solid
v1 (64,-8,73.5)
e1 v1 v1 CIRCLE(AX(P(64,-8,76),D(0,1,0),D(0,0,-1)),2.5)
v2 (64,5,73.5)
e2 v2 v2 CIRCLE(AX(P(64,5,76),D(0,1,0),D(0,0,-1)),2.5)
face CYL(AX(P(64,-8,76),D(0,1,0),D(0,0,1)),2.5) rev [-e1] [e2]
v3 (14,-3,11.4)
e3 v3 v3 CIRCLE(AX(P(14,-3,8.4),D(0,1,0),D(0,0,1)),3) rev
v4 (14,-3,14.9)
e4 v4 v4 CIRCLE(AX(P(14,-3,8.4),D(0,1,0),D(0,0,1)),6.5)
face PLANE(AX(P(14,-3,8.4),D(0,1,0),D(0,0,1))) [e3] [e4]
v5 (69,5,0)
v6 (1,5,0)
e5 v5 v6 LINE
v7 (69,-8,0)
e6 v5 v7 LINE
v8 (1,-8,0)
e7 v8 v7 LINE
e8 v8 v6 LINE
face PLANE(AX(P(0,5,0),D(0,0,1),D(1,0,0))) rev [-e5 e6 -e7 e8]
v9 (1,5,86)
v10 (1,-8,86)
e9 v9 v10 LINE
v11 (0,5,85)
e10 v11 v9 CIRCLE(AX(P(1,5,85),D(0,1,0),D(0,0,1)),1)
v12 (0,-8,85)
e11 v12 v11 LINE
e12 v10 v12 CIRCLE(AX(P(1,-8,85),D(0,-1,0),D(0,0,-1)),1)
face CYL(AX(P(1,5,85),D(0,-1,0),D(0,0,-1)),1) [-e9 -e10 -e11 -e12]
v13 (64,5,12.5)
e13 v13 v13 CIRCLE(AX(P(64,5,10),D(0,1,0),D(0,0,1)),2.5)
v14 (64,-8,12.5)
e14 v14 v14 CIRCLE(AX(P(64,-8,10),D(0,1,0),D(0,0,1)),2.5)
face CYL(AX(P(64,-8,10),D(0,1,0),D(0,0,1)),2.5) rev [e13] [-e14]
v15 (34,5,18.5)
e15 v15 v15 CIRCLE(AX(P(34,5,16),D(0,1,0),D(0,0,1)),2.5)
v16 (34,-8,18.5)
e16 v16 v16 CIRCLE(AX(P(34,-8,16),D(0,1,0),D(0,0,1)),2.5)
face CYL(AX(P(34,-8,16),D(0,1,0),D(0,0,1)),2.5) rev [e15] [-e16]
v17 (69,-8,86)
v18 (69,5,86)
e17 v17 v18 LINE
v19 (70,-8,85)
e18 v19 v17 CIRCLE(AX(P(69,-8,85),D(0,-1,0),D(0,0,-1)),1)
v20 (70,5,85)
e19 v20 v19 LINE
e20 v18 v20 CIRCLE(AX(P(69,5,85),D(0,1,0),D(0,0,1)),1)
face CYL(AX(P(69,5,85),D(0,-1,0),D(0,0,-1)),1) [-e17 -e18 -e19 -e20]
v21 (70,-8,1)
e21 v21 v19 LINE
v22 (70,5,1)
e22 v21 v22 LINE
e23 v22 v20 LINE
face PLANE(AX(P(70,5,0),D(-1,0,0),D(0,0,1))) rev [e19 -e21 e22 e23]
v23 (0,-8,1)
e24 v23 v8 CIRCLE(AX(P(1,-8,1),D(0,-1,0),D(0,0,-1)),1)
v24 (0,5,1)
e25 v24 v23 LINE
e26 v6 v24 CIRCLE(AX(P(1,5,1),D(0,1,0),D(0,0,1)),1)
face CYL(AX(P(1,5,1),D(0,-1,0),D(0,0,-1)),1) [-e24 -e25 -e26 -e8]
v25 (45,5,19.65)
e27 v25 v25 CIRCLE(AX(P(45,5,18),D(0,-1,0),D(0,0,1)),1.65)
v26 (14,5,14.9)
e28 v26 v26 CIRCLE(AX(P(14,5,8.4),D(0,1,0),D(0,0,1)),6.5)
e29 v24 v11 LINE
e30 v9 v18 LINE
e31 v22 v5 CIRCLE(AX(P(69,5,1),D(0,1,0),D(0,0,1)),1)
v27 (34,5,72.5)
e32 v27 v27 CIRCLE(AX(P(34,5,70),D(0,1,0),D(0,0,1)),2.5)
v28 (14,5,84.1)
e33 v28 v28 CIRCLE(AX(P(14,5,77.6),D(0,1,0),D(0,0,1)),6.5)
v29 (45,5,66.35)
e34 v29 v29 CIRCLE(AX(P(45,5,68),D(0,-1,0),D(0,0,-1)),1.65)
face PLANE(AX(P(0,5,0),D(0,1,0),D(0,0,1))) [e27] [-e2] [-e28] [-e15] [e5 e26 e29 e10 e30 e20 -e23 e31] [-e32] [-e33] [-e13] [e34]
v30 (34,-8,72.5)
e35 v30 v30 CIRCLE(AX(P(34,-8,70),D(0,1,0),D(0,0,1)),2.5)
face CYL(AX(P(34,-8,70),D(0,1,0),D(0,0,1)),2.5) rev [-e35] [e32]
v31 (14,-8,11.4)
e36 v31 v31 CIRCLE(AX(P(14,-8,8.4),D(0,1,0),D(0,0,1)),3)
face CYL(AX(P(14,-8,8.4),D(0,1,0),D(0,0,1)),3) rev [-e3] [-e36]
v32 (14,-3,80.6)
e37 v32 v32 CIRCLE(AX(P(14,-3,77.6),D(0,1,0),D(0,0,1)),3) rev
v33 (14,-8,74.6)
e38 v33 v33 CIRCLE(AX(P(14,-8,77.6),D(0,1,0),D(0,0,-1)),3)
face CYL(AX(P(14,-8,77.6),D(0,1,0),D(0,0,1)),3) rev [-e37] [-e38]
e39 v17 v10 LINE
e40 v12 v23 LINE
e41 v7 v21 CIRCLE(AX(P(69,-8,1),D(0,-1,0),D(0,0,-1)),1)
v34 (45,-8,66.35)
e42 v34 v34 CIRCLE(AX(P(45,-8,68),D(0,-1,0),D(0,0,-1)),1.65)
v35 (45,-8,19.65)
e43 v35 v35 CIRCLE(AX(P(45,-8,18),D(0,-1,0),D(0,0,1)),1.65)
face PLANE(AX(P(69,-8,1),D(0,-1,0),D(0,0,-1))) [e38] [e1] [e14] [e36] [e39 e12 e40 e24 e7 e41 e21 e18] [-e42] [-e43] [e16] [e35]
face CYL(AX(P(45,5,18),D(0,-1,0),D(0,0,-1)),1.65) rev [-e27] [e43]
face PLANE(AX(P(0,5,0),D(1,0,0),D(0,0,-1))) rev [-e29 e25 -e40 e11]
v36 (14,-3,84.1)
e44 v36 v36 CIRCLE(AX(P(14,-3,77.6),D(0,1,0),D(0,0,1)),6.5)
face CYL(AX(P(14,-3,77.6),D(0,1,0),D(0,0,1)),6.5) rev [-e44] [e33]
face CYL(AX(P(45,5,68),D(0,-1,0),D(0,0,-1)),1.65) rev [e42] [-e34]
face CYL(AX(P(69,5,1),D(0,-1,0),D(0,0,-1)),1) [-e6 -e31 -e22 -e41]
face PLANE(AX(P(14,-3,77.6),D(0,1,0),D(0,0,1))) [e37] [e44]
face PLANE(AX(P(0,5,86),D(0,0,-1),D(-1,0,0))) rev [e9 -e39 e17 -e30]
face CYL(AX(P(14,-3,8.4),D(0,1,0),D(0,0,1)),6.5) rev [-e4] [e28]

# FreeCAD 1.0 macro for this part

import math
import FreeCAD as App
import Part
import Sketcher


def edges_at(feature, points):
    """Names of the edges that pass closest to the given points."""
    edges = feature.Shape.Edges
    near = lambda p: min(range(len(edges)), key=lambda i: edges[i].distToShape(Part.Vertex(*p))[0])
    return sorted({f"Edge{near(p) + 1}" for p in points})


def add_polygon(sketch, points):
    """Adds a closed chain of lines whose ends are joined by coincident constraints."""
    first, n = sketch.GeometryCount, len(points)
    for a, b in zip(points, points[1:] + points[:1]):
        sketch.addGeometry(Part.LineSegment(App.Vector(*a, 0), App.Vector(*b, 0)), False)
    for i in range(n):
        sketch.addConstraint(Sketcher.Constraint("Coincident", first + i, 2, first + (i + 1) % n, 1))

doc = App.newDocument("Part")
body = doc.addObject("PartDesign::Body", "Body")

# Sketch on XZ plane
sketch1 = body.newObject("Sketcher::SketchObject", "Sketch")
sketch1.AttachmentSupport = (doc.getObject("XZ_Plane"), [""])
sketch1.MapMode = "FlatFace"
add_polygon(sketch1, [(0, 0), (0, 86), (70, 86), (70, 0)])  # lines 0-3
sketch1.addConstraint([
    Sketcher.Constraint("Vertical", 0),
    Sketcher.Constraint("Horizontal", 1),
    Sketcher.Constraint("Vertical", 2),
    Sketcher.Constraint("Horizontal", 3),
    Sketcher.Constraint("Coincident", 3, 2, -1, 1),
    Sketcher.Constraint("DistanceX", 1, 1, 1, 2, 70.0),
    Sketcher.Constraint("DistanceY", 0, 1, 0, 2, 86.0),
])
pad1 = body.newObject("PartDesign::Pad", "Pad")
pad1.Profile = sketch1
pad1.Length = 5
pad1.Reversed = True

# Sketch on XZ plane
sketch2 = body.newObject("Sketcher::SketchObject", "Sketch001")
sketch2.AttachmentSupport = (doc.getObject("XZ_Plane"), [""])
sketch2.MapMode = "FlatFace"
sketch2.AttachmentOffset = App.Placement(App.Vector(0, 0, -5), App.Rotation())
add_polygon(sketch2, [(58, 0), (58, 86), (70, 86), (70, 0)])  # lines 0-3
sketch2.addConstraint([
    Sketcher.Constraint("Vertical", 0),
    Sketcher.Constraint("Horizontal", 1),
    Sketcher.Constraint("Vertical", 2),
    Sketcher.Constraint("Horizontal", 3),
    Sketcher.Constraint("PointOnObject", 2, 2, -1),
    Sketcher.Constraint("DistanceX", 1, 1, 1, 2, 12.0),
    Sketcher.Constraint("DistanceY", 0, 1, 0, 2, 86.0),
    Sketcher.Constraint("DistanceX", -1, 1, 0, 2, 58.0),
])
pad2 = body.newObject("PartDesign::Pad", "Pad001")
pad2.Profile = sketch2
pad2.Length = 87
pad2.Reversed = True

# Sketch on YZ plane
sketch3 = body.newObject("Sketcher::SketchObject", "Sketch002")
sketch3.AttachmentSupport = (doc.getObject("YZ_Plane"), [""])
sketch3.MapMode = "FlatFace"
sketch3.AttachmentOffset = App.Placement(App.Vector(0, 0, 58), App.Rotation())
sketch3.addGeometry(Part.Circle(App.Vector(56, 43, 0), App.Vector(0, 0, 1), 38), False)
sketch3.addConstraint([
    Sketcher.Constraint("Diameter", 0, 76.0),
    Sketcher.Constraint("DistanceX", -1, 1, 0, 3, 56.0),
    Sketcher.Constraint("DistanceY", -1, 1, 0, 3, 43.0),
])
pocket1 = body.newObject("PartDesign::Pocket", "Pocket")
pocket1.Profile = sketch3
pocket1.Length = 3
pocket1.Reversed = True

# Sketch on YZ plane
sketch4 = body.newObject("Sketcher::SketchObject", "Sketch003")
sketch4.AttachmentSupport = (doc.getObject("YZ_Plane"), [""])
sketch4.MapMode = "FlatFace"
sketch4.AttachmentOffset = App.Placement(App.Vector(0, 0, 58), App.Rotation())
sketch4.addGeometry([
    Part.Circle(App.Vector(90.8, 77.8, 0), App.Vector(0, 0, 1), 2.6),
    Part.Circle(App.Vector(21.2, 77.8, 0), App.Vector(0, 0, 1), 2.6),
    Part.Circle(App.Vector(90.8, 8.2, 0), App.Vector(0, 0, 1), 2.6),
    Part.Circle(App.Vector(21.2, 8.2, 0), App.Vector(0, 0, 1), 2.6),
], False)
sketch4.addConstraint([
    Sketcher.Constraint("Equal", 0, 1),
    Sketcher.Constraint("Equal", 1, 2),
    Sketcher.Constraint("Equal", 2, 3),
    Sketcher.Constraint("Horizontal", 0, 3, 1, 3),
    Sketcher.Constraint("Horizontal", 2, 3, 3, 3),
    Sketcher.Constraint("Vertical", 0, 3, 2, 3),
    Sketcher.Constraint("Vertical", 1, 3, 3, 3),
    Sketcher.Constraint("Diameter", 0, 5.2),
    Sketcher.Constraint("DistanceX", -1, 1, 0, 3, 90.8),
    Sketcher.Constraint("DistanceY", -1, 1, 0, 3, 77.8),
    Sketcher.Constraint("DistanceX", -1, 1, 1, 3, 21.2),
    Sketcher.Constraint("DistanceY", -1, 1, 2, 3, 8.2),
])
pocket2 = body.newObject("PartDesign::Pocket", "Pocket001")
pocket2.Profile = sketch4
pocket2.Type = "ThroughAll"
pocket2.Reversed = True
doc.recompute()

fillet = body.newObject("PartDesign::Fillet", "Fillet")
fillet.Base = (pocket2, edges_at(pocket2, [(64, 92, 0), (64, 92, 86)]))
fillet.Radius = 3

# Sketch on YZ plane
sketch5 = body.newObject("Sketcher::SketchObject", "Sketch004")
sketch5.AttachmentSupport = (doc.getObject("YZ_Plane"), [""])
sketch5.MapMode = "FlatFace"
sketch5.AttachmentOffset = App.Placement(App.Vector(0, 0, 58), App.Rotation())
sketch5.addGeometry(Part.Circle(App.Vector(56, 43, 0), App.Vector(0, 0, 1), 20), False)
sketch5.addConstraint([
    Sketcher.Constraint("Diameter", 0, 40.0),
    Sketcher.Constraint("DistanceX", -1, 1, 0, 3, 56.0),
    Sketcher.Constraint("DistanceY", -1, 1, 0, 3, 43.0),
])
pocket3 = body.newObject("PartDesign::Pocket", "Pocket002")
pocket3.Profile = sketch5
pocket3.Type = "ThroughAll"
pocket3.Reversed = True

# Sketch on XY plane
sketch6 = body.newObject("Sketcher::SketchObject", "Sketch005")
sketch6.AttachmentSupport = (doc.getObject("XY_Plane"), [""])
sketch6.MapMode = "FlatFace"
sketch6.AttachmentOffset = App.Placement(App.Vector(0, 0, 86), App.Rotation())
add_polygon(sketch6, [(58, 92), (58, 5), (70, 5), (70, 92)])  # lines 0-3
sketch6.addConstraint([
    Sketcher.Constraint("Vertical", 0),
    Sketcher.Constraint("Horizontal", 1),
    Sketcher.Constraint("Vertical", 2),
    Sketcher.Constraint("Horizontal", 3),
    Sketcher.Constraint("DistanceX", 1, 1, 1, 2, 12.0),
    Sketcher.Constraint("DistanceY", 0, 2, 0, 1, 87.0),
    Sketcher.Constraint("DistanceX", -1, 1, 0, 2, 58.0),
    Sketcher.Constraint("DistanceY", -1, 1, 0, 2, 5.0),
])
pocket4 = body.newObject("PartDesign::Pocket", "Pocket003")
pocket4.Profile = sketch6
pocket4.Type = "ThroughAll"
doc.recompute()

fillet2 = body.newObject("PartDesign::Fillet", "Fillet001")
fillet2.Base = (pocket4, edges_at(pocket4, [
    (0, 2.5, 0),
    (0, 2.5, 86),
    (70, 2.5, 0),
    (70, 2.5, 86),
]))
fillet2.Radius = 1

# Sketch on XZ plane
sketch7 = body.newObject("Sketcher::SketchObject", "Sketch006")
sketch7.AttachmentSupport = (doc.getObject("XZ_Plane"), [""])
sketch7.MapMode = "FlatFace"
sketch7.addGeometry([
    Part.LineSegment(App.Vector(70, 1, 0), App.Vector(70, 85, 0)),  # 0
    Part.ArcOfCircle(Part.Circle(App.Vector(69, 85, 0), App.Vector(0, 0, 1), 1), math.radians(0), math.radians(90)),  # 1
    Part.LineSegment(App.Vector(69, 86, 0), App.Vector(1, 86, 0)),  # 2
    Part.ArcOfCircle(Part.Circle(App.Vector(1, 85, 0), App.Vector(0, 0, 1), 1), math.radians(90), math.radians(180)),  # 3
    Part.LineSegment(App.Vector(0, 85, 0), App.Vector(0, 1, 0)),  # 4
    Part.ArcOfCircle(Part.Circle(App.Vector(1, 1, 0), App.Vector(0, 0, 1), 1), math.radians(-180), math.radians(-90)),  # 5
    Part.LineSegment(App.Vector(1, 0, 0), App.Vector(69, 0, 0)),  # 6
    Part.ArcOfCircle(Part.Circle(App.Vector(69, 1, 0), App.Vector(0, 0, 1), 1), math.radians(-90), math.radians(0)),  # 7
], False)
sketch7.addConstraint([
    Sketcher.Constraint("Tangent", 0, 2, 1, 1),
    Sketcher.Constraint("Tangent", 1, 2, 2, 1),
    Sketcher.Constraint("Tangent", 2, 2, 3, 1),
    Sketcher.Constraint("Tangent", 3, 2, 4, 1),
    Sketcher.Constraint("Tangent", 4, 2, 5, 1),
    Sketcher.Constraint("Tangent", 5, 2, 6, 1),
    Sketcher.Constraint("Tangent", 6, 2, 7, 1),
    Sketcher.Constraint("Tangent", 7, 2, 0, 1),
    Sketcher.Constraint("Vertical", 0),
    Sketcher.Constraint("Horizontal", 2),
    Sketcher.Constraint("Vertical", 4),
    Sketcher.Constraint("Horizontal", 6),
    Sketcher.Constraint("Equal", 1, 3),
    Sketcher.Constraint("Equal", 3, 5),
    Sketcher.Constraint("Equal", 5, 7),
    Sketcher.Constraint("PointOnObject", 3, 2, -2),
    Sketcher.Constraint("PointOnObject", 5, 2, -1),
    Sketcher.Constraint("Radius", 1, 1.0),
    Sketcher.Constraint("DistanceX", 2, 2, 2, 1, 68.0),
    Sketcher.Constraint("DistanceY", 0, 1, 0, 2, 84.0),
])
pad3 = body.newObject("PartDesign::Pad", "Pad002")
pad3.Profile = sketch7
pad3.Length = 8

# Sketch on XZ plane
sketch8 = body.newObject("Sketcher::SketchObject", "Sketch007")
sketch8.AttachmentSupport = (doc.getObject("XZ_Plane"), [""])
sketch8.MapMode = "FlatFace"
sketch8.AttachmentOffset = App.Placement(App.Vector(0, 0, -5), App.Rotation())
sketch8.addGeometry([
    Part.Circle(App.Vector(14, 8.4, 0), App.Vector(0, 0, 1), 3),
    Part.Circle(App.Vector(14, 77.6, 0), App.Vector(0, 0, 1), 3),
], False)
sketch8.addConstraint([
    Sketcher.Constraint("Equal", 0, 1),
    Sketcher.Constraint("Vertical", 0, 3, 1, 3),
    Sketcher.Constraint("Diameter", 0, 6.0),
    Sketcher.Constraint("DistanceX", -1, 1, 0, 3, 14.0),
    Sketcher.Constraint("DistanceY", -1, 1, 0, 3, 8.4),
    Sketcher.Constraint("DistanceY", -1, 1, 1, 3, 77.6),
])
pocket5 = body.newObject("PartDesign::Pocket", "Pocket004")
pocket5.Profile = sketch8
pocket5.Type = "ThroughAll"
pocket5.Reversed = True

# Sketch on XZ plane
sketch9 = body.newObject("Sketcher::SketchObject", "Sketch008")
sketch9.AttachmentSupport = (doc.getObject("XZ_Plane"), [""])
sketch9.MapMode = "FlatFace"
sketch9.addGeometry([
    Part.Circle(App.Vector(45, 68, 0), App.Vector(0, 0, 1), 1.65),
    Part.Circle(App.Vector(45, 18, 0), App.Vector(0, 0, 1), 1.65),
], False)
sketch9.addConstraint([
    Sketcher.Constraint("Equal", 0, 1),
    Sketcher.Constraint("Vertical", 0, 3, 1, 3),
    Sketcher.Constraint("Diameter", 0, 3.3),
    Sketcher.Constraint("DistanceX", -1, 1, 0, 3, 45.0),
    Sketcher.Constraint("DistanceY", -1, 1, 0, 3, 68.0),
    Sketcher.Constraint("DistanceY", -1, 1, 1, 3, 18.0),
])
pocket6 = body.newObject("PartDesign::Pocket", "Pocket005")
pocket6.Profile = sketch9
pocket6.Type = "ThroughAll"
pocket6.Midplane = True

# Sketch on XZ plane
sketch10 = body.newObject("Sketcher::SketchObject", "Sketch009")
sketch10.AttachmentSupport = (doc.getObject("XZ_Plane"), [""])
sketch10.MapMode = "FlatFace"
sketch10.AttachmentOffset = App.Placement(App.Vector(0, 0, -5), App.Rotation())
sketch10.addGeometry([
    Part.Circle(App.Vector(64, 10, 0), App.Vector(0, 0, 1), 2.5),
    Part.Circle(App.Vector(64, 76, 0), App.Vector(0, 0, 1), 2.5),
    Part.Circle(App.Vector(34, 70, 0), App.Vector(0, 0, 1), 2.5),
    Part.Circle(App.Vector(34, 16, 0), App.Vector(0, 0, 1), 2.5),
], False)
sketch10.addConstraint([
    Sketcher.Constraint("Equal", 0, 1),
    Sketcher.Constraint("Equal", 1, 2),
    Sketcher.Constraint("Equal", 2, 3),
    Sketcher.Constraint("Vertical", 0, 3, 1, 3),
    Sketcher.Constraint("Vertical", 2, 3, 3, 3),
    Sketcher.Constraint("Diameter", 0, 5.0),
    Sketcher.Constraint("DistanceX", -1, 1, 0, 3, 64.0),
    Sketcher.Constraint("DistanceY", -1, 1, 0, 3, 10.0),
    Sketcher.Constraint("DistanceY", -1, 1, 1, 3, 76.0),
    Sketcher.Constraint("DistanceX", -1, 1, 2, 3, 34.0),
    Sketcher.Constraint("DistanceY", -1, 1, 2, 3, 70.0),
    Sketcher.Constraint("DistanceY", -1, 1, 3, 3, 16.0),
])
pocket7 = body.newObject("PartDesign::Pocket", "Pocket006")
pocket7.Profile = sketch10
pocket7.Type = "ThroughAll"
pocket7.Reversed = True

# Sketch on XZ plane
sketch11 = body.newObject("Sketcher::SketchObject", "Sketch010")
sketch11.AttachmentSupport = (doc.getObject("XZ_Plane"), [""])
sketch11.MapMode = "FlatFace"
sketch11.AttachmentOffset = App.Placement(App.Vector(0, 0, -5), App.Rotation())
sketch11.addGeometry([
    Part.Circle(App.Vector(14, 8.4, 0), App.Vector(0, 0, 1), 6.5),
    Part.Circle(App.Vector(14, 77.6, 0), App.Vector(0, 0, 1), 6.5),
], False)
sketch11.addConstraint([
    Sketcher.Constraint("Equal", 0, 1),
    Sketcher.Constraint("Vertical", 0, 3, 1, 3),
    Sketcher.Constraint("Diameter", 0, 13.0),
    Sketcher.Constraint("DistanceX", -1, 1, 0, 3, 14.0),
    Sketcher.Constraint("DistanceY", -1, 1, 0, 3, 8.4),
    Sketcher.Constraint("DistanceY", -1, 1, 1, 3, 77.6),
])
pocket8 = body.newObject("PartDesign::Pocket", "Pocket007")
pocket8.Profile = sketch11
pocket8.Length = 8
pocket8.Reversed = True

doc.recompute()
